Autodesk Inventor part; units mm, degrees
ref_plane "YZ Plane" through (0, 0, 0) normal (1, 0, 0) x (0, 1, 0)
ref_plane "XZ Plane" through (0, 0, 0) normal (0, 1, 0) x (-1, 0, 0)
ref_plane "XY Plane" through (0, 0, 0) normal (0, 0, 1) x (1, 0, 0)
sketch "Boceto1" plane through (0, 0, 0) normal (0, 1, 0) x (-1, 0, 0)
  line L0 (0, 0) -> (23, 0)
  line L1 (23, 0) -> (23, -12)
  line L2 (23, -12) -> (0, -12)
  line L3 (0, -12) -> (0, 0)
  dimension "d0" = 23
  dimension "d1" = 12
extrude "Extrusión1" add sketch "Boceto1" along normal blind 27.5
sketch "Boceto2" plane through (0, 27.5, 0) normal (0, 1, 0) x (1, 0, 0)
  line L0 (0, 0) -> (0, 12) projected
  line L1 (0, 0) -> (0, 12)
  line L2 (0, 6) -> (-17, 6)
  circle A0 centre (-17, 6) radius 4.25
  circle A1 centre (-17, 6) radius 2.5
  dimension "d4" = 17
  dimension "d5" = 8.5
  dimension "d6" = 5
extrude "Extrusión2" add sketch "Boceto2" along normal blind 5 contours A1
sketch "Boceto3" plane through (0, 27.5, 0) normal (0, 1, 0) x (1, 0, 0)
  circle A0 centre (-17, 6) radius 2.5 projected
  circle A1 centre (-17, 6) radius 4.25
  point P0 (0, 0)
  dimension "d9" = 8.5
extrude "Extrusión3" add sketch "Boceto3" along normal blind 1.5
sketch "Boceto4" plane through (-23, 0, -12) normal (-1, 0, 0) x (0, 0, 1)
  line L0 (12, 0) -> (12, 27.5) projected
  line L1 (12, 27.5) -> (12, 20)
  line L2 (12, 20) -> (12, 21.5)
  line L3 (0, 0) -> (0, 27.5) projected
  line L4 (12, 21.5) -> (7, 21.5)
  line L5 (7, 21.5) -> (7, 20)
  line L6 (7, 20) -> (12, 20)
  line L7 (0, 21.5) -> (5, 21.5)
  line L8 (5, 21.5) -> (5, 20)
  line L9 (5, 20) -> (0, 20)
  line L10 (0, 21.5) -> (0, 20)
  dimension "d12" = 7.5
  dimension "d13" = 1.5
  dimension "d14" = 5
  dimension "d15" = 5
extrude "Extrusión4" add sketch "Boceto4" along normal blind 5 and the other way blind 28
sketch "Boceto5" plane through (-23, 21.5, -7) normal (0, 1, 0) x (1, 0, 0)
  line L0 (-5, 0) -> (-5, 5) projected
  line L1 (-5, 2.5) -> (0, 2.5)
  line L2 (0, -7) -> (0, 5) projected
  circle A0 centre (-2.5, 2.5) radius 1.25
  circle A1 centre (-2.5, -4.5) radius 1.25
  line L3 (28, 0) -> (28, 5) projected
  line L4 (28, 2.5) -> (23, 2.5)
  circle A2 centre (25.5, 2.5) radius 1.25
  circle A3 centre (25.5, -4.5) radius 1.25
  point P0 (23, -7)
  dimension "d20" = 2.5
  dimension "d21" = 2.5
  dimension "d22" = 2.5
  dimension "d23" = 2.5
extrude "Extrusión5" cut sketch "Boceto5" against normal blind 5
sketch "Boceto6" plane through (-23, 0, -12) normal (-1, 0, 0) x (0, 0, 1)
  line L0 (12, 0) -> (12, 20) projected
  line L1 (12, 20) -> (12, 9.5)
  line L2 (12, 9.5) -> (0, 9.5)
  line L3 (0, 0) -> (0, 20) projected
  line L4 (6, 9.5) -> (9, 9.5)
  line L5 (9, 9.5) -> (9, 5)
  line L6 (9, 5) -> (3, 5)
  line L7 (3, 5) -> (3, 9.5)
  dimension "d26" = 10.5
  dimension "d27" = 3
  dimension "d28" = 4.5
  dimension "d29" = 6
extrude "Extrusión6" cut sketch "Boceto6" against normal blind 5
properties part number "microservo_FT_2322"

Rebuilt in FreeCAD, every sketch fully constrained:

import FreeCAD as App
import Part
import Sketcher

V = App.Vector


def add_polygon(sketch, points):
    """Adds a closed chain of lines whose ends are joined by coincident constraints."""
    first, n = sketch.GeometryCount, len(points)
    for a, b in zip(points, points[1:] + points[:1]):
        sketch.addGeometry(Part.LineSegment(App.Vector(*a, 0), App.Vector(*b, 0)), False)
    for i in range(n):
        sketch.addConstraint(Sketcher.Constraint("Coincident", first + i, 2, first + (i + 1) % n, 1))

doc = App.newDocument("Part")
body = doc.addObject("PartDesign::Body", "Body")

sketch1 = body.newObject("Sketcher::SketchObject", "Sketch")
sketch1.AttachmentSupport = (doc.getObject("XZ_Plane"), [""])
sketch1.MapMode = "FlatFace"
add_polygon(sketch1, [(-23, 0), (0, 0), (0, -12), (-23, -12)])
sketch1.addConstraint([
    Sketcher.Constraint("Horizontal", 0),
    Sketcher.Constraint("Vertical", 1),
    Sketcher.Constraint("Horizontal", 2),
    Sketcher.Constraint("Vertical", 3),
    Sketcher.Constraint("Coincident", 0, 2, -1, 1),
    Sketcher.Constraint("DistanceX", 0, 1, 0, 2, 23.0),
    Sketcher.Constraint("DistanceY", 1, 2, 1, 1, 12.0),
])
pad1 = body.newObject("PartDesign::Pad", "Pad")
pad1.Profile = sketch1
pad1.Length = 27.5
pad1.Reversed = True

sketch2 = body.newObject("Sketcher::SketchObject", "Sketch001")
sketch2.AttachmentSupport = (doc.getObject("XZ_Plane"), [""])
sketch2.MapMode = "FlatFace"
sketch2.AttachmentOffset = App.Placement(V(0, 0, -27.5), App.Rotation())
sketch2.addGeometry(Part.Circle(V(-17, -6, 0), V(0, 0, 1), 2.5), False)
sketch2.addConstraint([
    Sketcher.Constraint("Diameter", 0, 5.0),
    Sketcher.Constraint("DistanceX", 0, 3, -1, 1, 17.0),
    Sketcher.Constraint("DistanceY", 0, 3, -1, 1, 6.0),
])
pad2 = body.newObject("PartDesign::Pad", "Pad001")
pad2.Profile = sketch2
pad2.Length = 5
pad2.Reversed = True

sketch3 = body.newObject("Sketcher::SketchObject", "Sketch002")
sketch3.AttachmentSupport = (doc.getObject("XZ_Plane"), [""])
sketch3.MapMode = "FlatFace"
sketch3.AttachmentOffset = App.Placement(V(0, 0, -27.5), App.Rotation())
sketch3.addGeometry([
    Part.Circle(V(-17, -6, 0), V(0, 0, 1), 4.2),
    Part.Circle(V(-17, -6, 0), V(0, 0, 1), 2.5),
], False)
sketch3.addConstraint([
    Sketcher.Constraint("Coincident", 1, 3, 0, 3),
    Sketcher.Constraint("Diameter", 0, 8.5),
    Sketcher.Constraint("Diameter", 1, 5.0),
    Sketcher.Constraint("DistanceX", 0, 3, -1, 1, 17.0),
    Sketcher.Constraint("DistanceY", 0, 3, -1, 1, 6.0),
])
pad3 = body.newObject("PartDesign::Pad", "Pad002")
pad3.Profile = sketch3
pad3.Length = 1.5
pad3.Reversed = True

sketch4 = body.newObject("Sketcher::SketchObject", "Sketch003")
sketch4.AttachmentSupport = (doc.getObject("YZ_Plane"), [""])
sketch4.MapMode = "FlatFace"
sketch4.AttachmentOffset = App.Placement(V(0, 0, -23), App.Rotation())
add_polygon(sketch4, [(20, -5), (20, 0), (21.5, 0), (21.5, -5)])
add_polygon(sketch4, [(21.5, -12), (20, -12), (20, -7), (21.5, -7)])
sketch4.addConstraint([
    Sketcher.Constraint("Vertical", 0),
    Sketcher.Constraint("Horizontal", 1),
    Sketcher.Constraint("Vertical", 2),
    Sketcher.Constraint("Horizontal", 3),
    Sketcher.Constraint("Horizontal", 4),
    Sketcher.Constraint("Vertical", 5),
    Sketcher.Constraint("Horizontal", 6),
    Sketcher.Constraint("Vertical", 7),
    Sketcher.Constraint("PointOnObject", 0, 2, -1),
    Sketcher.Constraint("Vertical", 3, 2, 4, 2),
    Sketcher.Constraint("Vertical", 2, 2, 6, 2),
    Sketcher.Constraint("Equal", 2, 5),
    Sketcher.Constraint("DistanceY", 0, 1, 0, 2, 5.0),
    Sketcher.Constraint("DistanceX", 1, 1, 1, 2, 1.5),
    Sketcher.Constraint("DistanceX", -1, 1, 0, 2, 20.0),
    Sketcher.Constraint("DistanceY", 4, 2, -1, 1, 12.0),
])
pad4 = body.newObject("PartDesign::Pad", "Pad003")
pad4.Profile = sketch4
pad4.Type = "TwoLengths"
pad4.Length = 5
pad4.Length2 = 28
pad4.Reversed = True

sketch5 = body.newObject("Sketcher::SketchObject", "Sketch004")
sketch5.AttachmentSupport = (doc.getObject("XZ_Plane"), [""])
sketch5.MapMode = "FlatFace"
sketch5.AttachmentOffset = App.Placement(V(0, 0, -21.5), App.Rotation())
sketch5.addGeometry([
    Part.Circle(V(-25.5, -9.5, 0), V(0, 0, 1), 1.2),
    Part.Circle(V(-25.5, -2.5, 0), V(0, 0, 1), 1.2),
    Part.Circle(V(2.5, -9.5, 0), V(0, 0, 1), 1.2),
    Part.Circle(V(2.5, -2.5, 0), V(0, 0, 1), 1.2),
], False)
sketch5.addConstraint([
    Sketcher.Constraint("Equal", 0, 1),
    Sketcher.Constraint("Equal", 1, 2),
    Sketcher.Constraint("Equal", 2, 3),
    Sketcher.Constraint("Horizontal", 0, 3, 2, 3),
    Sketcher.Constraint("Horizontal", 1, 3, 3, 3),
    Sketcher.Constraint("Vertical", 0, 3, 1, 3),
    Sketcher.Constraint("Vertical", 2, 3, 3, 3),
    Sketcher.Constraint("Diameter", 0, 2.5),
    Sketcher.Constraint("DistanceY", 1, 3, -1, 1, 2.5),
    Sketcher.Constraint("DistanceX", -1, 1, 2, 3, 2.5),
    Sketcher.Constraint("DistanceY", 0, 3, 1, 3, 7.0),
    Sketcher.Constraint("DistanceX", 0, 3, 2, 3, 28.0),
])
pocket1 = body.newObject("PartDesign::Pocket", "Pocket")
pocket1.Profile = sketch5
pocket1.Length = 5
pocket1.Reversed = True

sketch6 = body.newObject("Sketcher::SketchObject", "Sketch005")
sketch6.AttachmentSupport = (doc.getObject("YZ_Plane"), [""])
sketch6.MapMode = "FlatFace"
sketch6.AttachmentOffset = App.Placement(V(0, 0, -23), App.Rotation())
add_polygon(sketch6, [(5, -3), (9.5, -3), (9.5, -9), (5, -9)])
sketch6.addConstraint([
    Sketcher.Constraint("Horizontal", 0),
    Sketcher.Constraint("Vertical", 1),
    Sketcher.Constraint("Horizontal", 2),
    Sketcher.Constraint("Vertical", 3),
    Sketcher.Constraint("DistanceY", 1, 2, 1, 1, 6.0),
    Sketcher.Constraint("DistanceX", 0, 1, 0, 2, 4.5),
    Sketcher.Constraint("DistanceY", 0, 2, -1, 1, 3.0),
    Sketcher.Constraint("DistanceX", -1, 1, 2, 2, 5.0),
])
pocket2 = body.newObject("PartDesign::Pocket", "Pocket001")
pocket2.Profile = sketch6
pocket2.Length = 5
pocket2.Reversed = True

doc.recompute()
